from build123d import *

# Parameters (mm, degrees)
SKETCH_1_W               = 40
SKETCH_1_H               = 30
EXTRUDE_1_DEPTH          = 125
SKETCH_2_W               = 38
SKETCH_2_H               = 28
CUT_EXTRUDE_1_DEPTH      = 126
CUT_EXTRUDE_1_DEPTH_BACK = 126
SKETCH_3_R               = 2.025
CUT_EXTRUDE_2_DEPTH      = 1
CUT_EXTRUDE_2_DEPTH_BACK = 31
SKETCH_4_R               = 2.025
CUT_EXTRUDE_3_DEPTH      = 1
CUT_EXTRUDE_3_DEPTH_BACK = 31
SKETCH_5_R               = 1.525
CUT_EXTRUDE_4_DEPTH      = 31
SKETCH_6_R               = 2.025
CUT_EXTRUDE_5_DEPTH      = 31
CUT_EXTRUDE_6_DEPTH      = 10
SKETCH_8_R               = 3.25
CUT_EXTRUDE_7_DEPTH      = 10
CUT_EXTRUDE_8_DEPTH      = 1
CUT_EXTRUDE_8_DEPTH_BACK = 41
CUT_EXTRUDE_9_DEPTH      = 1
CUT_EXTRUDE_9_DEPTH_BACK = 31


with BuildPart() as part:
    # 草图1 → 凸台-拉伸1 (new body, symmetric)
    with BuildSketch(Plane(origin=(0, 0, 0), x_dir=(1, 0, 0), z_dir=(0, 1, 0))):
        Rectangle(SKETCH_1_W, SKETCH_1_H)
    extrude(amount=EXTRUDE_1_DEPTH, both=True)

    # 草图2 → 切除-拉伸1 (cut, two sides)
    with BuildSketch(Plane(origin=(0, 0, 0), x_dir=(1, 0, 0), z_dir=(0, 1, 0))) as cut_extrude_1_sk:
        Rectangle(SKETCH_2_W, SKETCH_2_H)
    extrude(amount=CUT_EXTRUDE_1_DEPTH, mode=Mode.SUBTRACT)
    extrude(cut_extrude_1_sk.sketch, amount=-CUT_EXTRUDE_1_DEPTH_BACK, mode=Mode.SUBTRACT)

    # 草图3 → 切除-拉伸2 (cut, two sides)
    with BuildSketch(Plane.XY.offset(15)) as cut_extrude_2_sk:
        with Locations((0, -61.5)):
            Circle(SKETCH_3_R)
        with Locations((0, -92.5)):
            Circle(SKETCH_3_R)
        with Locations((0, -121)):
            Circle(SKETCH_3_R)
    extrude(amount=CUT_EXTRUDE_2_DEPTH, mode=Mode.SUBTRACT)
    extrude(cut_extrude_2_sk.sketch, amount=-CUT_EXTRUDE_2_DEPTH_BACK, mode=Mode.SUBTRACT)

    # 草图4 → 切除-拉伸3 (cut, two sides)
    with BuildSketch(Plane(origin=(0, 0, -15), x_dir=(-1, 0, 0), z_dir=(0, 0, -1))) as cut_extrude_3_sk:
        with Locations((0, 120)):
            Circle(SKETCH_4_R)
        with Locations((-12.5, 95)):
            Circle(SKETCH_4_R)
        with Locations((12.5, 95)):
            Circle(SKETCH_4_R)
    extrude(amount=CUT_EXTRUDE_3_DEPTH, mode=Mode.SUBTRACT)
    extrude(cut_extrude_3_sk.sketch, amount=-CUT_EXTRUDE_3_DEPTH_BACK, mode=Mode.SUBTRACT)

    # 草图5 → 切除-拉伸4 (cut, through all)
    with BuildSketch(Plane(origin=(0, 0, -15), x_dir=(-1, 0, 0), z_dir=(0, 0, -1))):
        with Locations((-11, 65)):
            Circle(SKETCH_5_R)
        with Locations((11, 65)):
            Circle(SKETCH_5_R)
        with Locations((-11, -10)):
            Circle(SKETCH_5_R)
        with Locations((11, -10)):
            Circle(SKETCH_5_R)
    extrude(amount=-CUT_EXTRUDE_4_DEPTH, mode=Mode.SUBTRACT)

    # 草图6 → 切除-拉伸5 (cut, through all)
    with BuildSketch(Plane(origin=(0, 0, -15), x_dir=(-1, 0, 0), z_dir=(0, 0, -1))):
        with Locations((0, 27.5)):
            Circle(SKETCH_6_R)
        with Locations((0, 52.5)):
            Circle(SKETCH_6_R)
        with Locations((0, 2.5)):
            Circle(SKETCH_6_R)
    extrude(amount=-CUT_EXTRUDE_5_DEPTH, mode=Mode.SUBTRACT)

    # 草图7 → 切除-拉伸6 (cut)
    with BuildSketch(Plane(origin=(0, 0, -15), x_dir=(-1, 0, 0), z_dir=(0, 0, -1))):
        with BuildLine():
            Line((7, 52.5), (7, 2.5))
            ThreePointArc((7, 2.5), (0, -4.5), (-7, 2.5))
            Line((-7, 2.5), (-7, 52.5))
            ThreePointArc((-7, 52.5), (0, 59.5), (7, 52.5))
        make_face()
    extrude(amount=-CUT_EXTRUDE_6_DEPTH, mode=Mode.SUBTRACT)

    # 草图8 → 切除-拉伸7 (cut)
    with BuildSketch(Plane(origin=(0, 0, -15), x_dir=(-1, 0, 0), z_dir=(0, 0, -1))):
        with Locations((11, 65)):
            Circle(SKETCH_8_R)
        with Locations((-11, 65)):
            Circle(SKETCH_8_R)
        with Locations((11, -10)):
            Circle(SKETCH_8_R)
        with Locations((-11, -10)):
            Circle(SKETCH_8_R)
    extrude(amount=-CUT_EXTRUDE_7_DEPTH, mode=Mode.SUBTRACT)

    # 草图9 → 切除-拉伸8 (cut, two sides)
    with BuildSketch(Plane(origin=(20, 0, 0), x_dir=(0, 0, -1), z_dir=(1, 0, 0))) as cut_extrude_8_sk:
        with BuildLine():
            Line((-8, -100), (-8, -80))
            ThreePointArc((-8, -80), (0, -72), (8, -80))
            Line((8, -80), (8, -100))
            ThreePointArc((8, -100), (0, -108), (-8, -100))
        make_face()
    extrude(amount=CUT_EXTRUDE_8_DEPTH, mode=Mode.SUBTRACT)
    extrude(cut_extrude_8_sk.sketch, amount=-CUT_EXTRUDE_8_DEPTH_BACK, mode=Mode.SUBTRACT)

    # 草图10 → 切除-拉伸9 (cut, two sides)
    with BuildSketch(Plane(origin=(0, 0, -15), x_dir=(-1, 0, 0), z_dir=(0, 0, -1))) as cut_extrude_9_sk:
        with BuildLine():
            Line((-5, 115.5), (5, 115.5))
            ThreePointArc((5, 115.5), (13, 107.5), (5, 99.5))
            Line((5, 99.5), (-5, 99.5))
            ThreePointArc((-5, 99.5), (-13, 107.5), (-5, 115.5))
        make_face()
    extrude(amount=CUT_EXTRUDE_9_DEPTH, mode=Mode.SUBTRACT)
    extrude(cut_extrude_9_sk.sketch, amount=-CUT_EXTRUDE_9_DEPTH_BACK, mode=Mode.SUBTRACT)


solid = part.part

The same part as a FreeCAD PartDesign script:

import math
import FreeCAD as App
import Part
import Sketcher
Q = App.Units.Quantity


def add_polygon(sketch, points):
    """Adds a closed chain of lines whose ends are joined by coincident constraints."""
    first, n = sketch.GeometryCount, len(points)
    for a, b in zip(points, points[1:] + points[:1]):
        sketch.addGeometry(Part.LineSegment(App.Vector(*a, 0), App.Vector(*b, 0)), False)
    for i in range(n):
        sketch.addConstraint(Sketcher.Constraint("Coincident", first + i, 2, first + (i + 1) % n, 1))

doc = App.newDocument("Part")
body = doc.addObject("PartDesign::Body", "Body")

# Sketch on XZ plane
sketch1 = body.newObject("Sketcher::SketchObject", "Sketch")
sketch1.AttachmentSupport = (doc.getObject("XZ_Plane"), [""])
sketch1.MapMode = "FlatFace"
add_polygon(sketch1, [(-20, -15), (-20, 15), (20, 15), (20, -15)])  # lines 0-3
sketch1.addConstraint([
    Sketcher.Constraint("Vertical", 0),
    Sketcher.Constraint("Horizontal", 1),
    Sketcher.Constraint("Vertical", 2),
    Sketcher.Constraint("Horizontal", 3),
    Sketcher.Constraint("Symmetric", 0, 2, 2, 2, -1, 1),
    Sketcher.Constraint("DistanceX", 1, 1, 1, 2, Q("40 mm")),
    Sketcher.Constraint("DistanceY", 0, 1, 0, 2, Q("30 mm")),
])
pad1 = body.newObject("PartDesign::Pad", "Pad")
pad1.Profile = sketch1
pad1.Length = 250
pad1.Midplane = True

# Sketch on XZ plane
sketch2 = body.newObject("Sketcher::SketchObject", "Sketch001")
sketch2.AttachmentSupport = (doc.getObject("XZ_Plane"), [""])
sketch2.MapMode = "FlatFace"
add_polygon(sketch2, [(-19, -14), (-19, 14), (19, 14), (19, -14)])  # lines 0-3
sketch2.addConstraint([
    Sketcher.Constraint("Vertical", 0),
    Sketcher.Constraint("Horizontal", 1),
    Sketcher.Constraint("Vertical", 2),
    Sketcher.Constraint("Horizontal", 3),
    Sketcher.Constraint("Symmetric", 0, 2, 2, 2, -1, 1),
    Sketcher.Constraint("DistanceX", 1, 1, 1, 2, Q("38 mm")),
    Sketcher.Constraint("DistanceY", 0, 1, 0, 2, Q("28 mm")),
])
pocket1 = body.newObject("PartDesign::Pocket", "Pocket")
pocket1.Profile = sketch2
pocket1.Type = "ThroughAll"
pocket1.Midplane = True

# Sketch on XY plane
sketch3 = body.newObject("Sketcher::SketchObject", "Sketch002")
sketch3.AttachmentSupport = (doc.getObject("XY_Plane"), [""])
sketch3.MapMode = "FlatFace"
sketch3.AttachmentOffset = App.Placement(App.Vector(0, 0, 15), App.Rotation())
sketch3.addGeometry([
    Part.Circle(App.Vector(0, -61.5, 0), App.Vector(0, 0, 1), 2),
    Part.Circle(App.Vector(0, -92.5, 0), App.Vector(0, 0, 1), 2),
    Part.Circle(App.Vector(0, -121, 0), App.Vector(0, 0, 1), 2),
], False)
sketch3.addConstraint([
    Sketcher.Constraint("Equal", 0, 1),
    Sketcher.Constraint("Equal", 1, 2),
    Sketcher.Constraint("PointOnObject", 0, 3, -2),
    Sketcher.Constraint("PointOnObject", 1, 3, -2),
    Sketcher.Constraint("PointOnObject", 2, 3, -2),
    Sketcher.Constraint("Diameter", 0, Q("4.05 mm")),
    Sketcher.Constraint("DistanceY", 2, 3, -1, 1, Q("121 mm")),
    Sketcher.Constraint("DistanceY", 1, 3, 0, 3, Q("31 mm")),
    Sketcher.Constraint("DistanceY", 0, 3, -1, 1, Q("61.5 mm")),
])
pocket2 = body.newObject("PartDesign::Pocket", "Pocket001")
pocket2.Profile = sketch3
pocket2.Type = "ThroughAll"
pocket2.Midplane = True

# Sketch on XY plane
sketch4 = body.newObject("Sketcher::SketchObject", "Sketch003")
sketch4.AttachmentSupport = (doc.getObject("XY_Plane"), [""])
sketch4.MapMode = "FlatFace"
sketch4.AttachmentOffset = App.Placement(App.Vector(0, 0, -15), App.Rotation())
sketch4.addGeometry([
    Part.Circle(App.Vector(0, 120, 0), App.Vector(0, 0, 1), 2),
    Part.Circle(App.Vector(12.5, 95, 0), App.Vector(0, 0, 1), 2),
    Part.Circle(App.Vector(-12.5, 95, 0), App.Vector(0, 0, 1), 2),
], False)
sketch4.addConstraint([
    Sketcher.Constraint("Equal", 0, 1),
    Sketcher.Constraint("Equal", 1, 2),
    Sketcher.Constraint("Symmetric", 1, 3, 2, 3, -2),
    Sketcher.Constraint("PointOnObject", 0, 3, -2),
    Sketcher.Constraint("Diameter", 0, Q("4.05 mm")),
    Sketcher.Constraint("DistanceY", -1, 1, 0, 3, Q("120 mm")),
    Sketcher.Constraint("DistanceY", -1, 1, 1, 3, Q("95 mm")),
    Sketcher.Constraint("DistanceX", 2, 3, 1, 3, Q("25 mm")),
])
pocket3 = body.newObject("PartDesign::Pocket", "Pocket002")
pocket3.Profile = sketch4
pocket3.Type = "ThroughAll"
pocket3.Midplane = True

# Sketch on XY plane
sketch5 = body.newObject("Sketcher::SketchObject", "Sketch004")
sketch5.AttachmentSupport = (doc.getObject("XY_Plane"), [""])
sketch5.MapMode = "FlatFace"
sketch5.AttachmentOffset = App.Placement(App.Vector(0, 0, -15), App.Rotation())
sketch5.addGeometry([
    Part.Circle(App.Vector(11, 65, 0), App.Vector(0, 0, 1), 1.5),
    Part.Circle(App.Vector(-11, 65, 0), App.Vector(0, 0, 1), 1.5),
    Part.Circle(App.Vector(11, -10, 0), App.Vector(0, 0, 1), 1.5),
    Part.Circle(App.Vector(-11, -10, 0), App.Vector(0, 0, 1), 1.5),
], False)
sketch5.addConstraint([
    Sketcher.Constraint("Equal", 0, 1),
    Sketcher.Constraint("Equal", 1, 2),
    Sketcher.Constraint("Equal", 2, 3),
    Sketcher.Constraint("Symmetric", 0, 3, 1, 3, -2),
    Sketcher.Constraint("Symmetric", 2, 3, 3, 3, -2),
    Sketcher.Constraint("Vertical", 0, 3, 2, 3),
    Sketcher.Constraint("Diameter", 0, Q("3.05 mm")),
    Sketcher.Constraint("DistanceX", -1, 1, 0, 3, Q("11 mm")),
    Sketcher.Constraint("DistanceY", -1, 1, 0, 3, Q("65 mm")),
    Sketcher.Constraint("DistanceY", 2, 3, -1, 1, Q("10 mm")),
])
pocket4 = body.newObject("PartDesign::Pocket", "Pocket003")
pocket4.Profile = sketch5
pocket4.Type = "ThroughAll"
pocket4.Reversed = True

# Sketch on XY plane
sketch6 = body.newObject("Sketcher::SketchObject", "Sketch005")
sketch6.AttachmentSupport = (doc.getObject("XY_Plane"), [""])
sketch6.MapMode = "FlatFace"
sketch6.AttachmentOffset = App.Placement(App.Vector(0, 0, -15), App.Rotation())
sketch6.addGeometry([
    Part.Circle(App.Vector(0, 27.5, 0), App.Vector(0, 0, 1), 2),
    Part.Circle(App.Vector(0, 52.5, 0), App.Vector(0, 0, 1), 2),
    Part.Circle(App.Vector(0, 2.5, 0), App.Vector(0, 0, 1), 2),
], False)
sketch6.addConstraint([
    Sketcher.Constraint("Equal", 0, 1),
    Sketcher.Constraint("Equal", 1, 2),
    Sketcher.Constraint("PointOnObject", 0, 3, -2),
    Sketcher.Constraint("PointOnObject", 1, 3, -2),
    Sketcher.Constraint("PointOnObject", 2, 3, -2),
    Sketcher.Constraint("Diameter", 0, Q("4.05 mm")),
    Sketcher.Constraint("DistanceY", 0, 3, 1, 3, Q("25 mm")),
    Sketcher.Constraint("DistanceY", 2, 3, 0, 3, Q("25 mm")),
    Sketcher.Constraint("DistanceY", -1, 1, 0, 3, Q("27.5 mm")),
])
pocket5 = body.newObject("PartDesign::Pocket", "Pocket004")
pocket5.Profile = sketch6
pocket5.Type = "ThroughAll"
pocket5.Reversed = True

# Sketch on XY plane
sketch7 = body.newObject("Sketcher::SketchObject", "Sketch006")
sketch7.AttachmentSupport = (doc.getObject("XY_Plane"), [""])
sketch7.MapMode = "FlatFace"
sketch7.AttachmentOffset = App.Placement(App.Vector(0, 0, -15), App.Rotation())
sketch7.addGeometry([
    Part.LineSegment(App.Vector(-7, 2, 0), App.Vector(-7, 52, 0)),
    Part.ArcOfCircle(Part.Circle(App.Vector(0, 52, 0), App.Vector(0, 0, 1), 7), math.radians(0), math.radians(180)),
    Part.LineSegment(App.Vector(7, 52, 0), App.Vector(7, 2, 0)),
    Part.ArcOfCircle(Part.Circle(App.Vector(0, 2, 0), App.Vector(0, 0, 1), 7), math.radians(180), math.radians(360)),
], False)
sketch7.addConstraint([
    Sketcher.Constraint("Tangent", 0, 2, 1, 2),
    Sketcher.Constraint("Tangent", 1, 1, 2, 1),
    Sketcher.Constraint("Tangent", 2, 2, 3, 2),
    Sketcher.Constraint("Tangent", 3, 1, 0, 1),
    Sketcher.Constraint("Vertical", 0),
    Sketcher.Constraint("Vertical", 2),
    Sketcher.Constraint("PointOnObject", 1, 3, -2),
    Sketcher.Constraint("Radius", 1, Q("7 mm")),
    Sketcher.Constraint("DistanceY", 0, 1, 0, 2, Q("50 mm")),
    Sketcher.Constraint("DistanceY", -1, 1, 1, 3, Q("52.5 mm")),
])
pocket6 = body.newObject("PartDesign::Pocket", "Pocket005")
pocket6.Profile = sketch7
pocket6.Length = 10
pocket6.Reversed = True

# Sketch on XY plane
sketch8 = body.newObject("Sketcher::SketchObject", "Sketch007")
sketch8.AttachmentSupport = (doc.getObject("XY_Plane"), [""])
sketch8.MapMode = "FlatFace"
sketch8.AttachmentOffset = App.Placement(App.Vector(0, 0, -15), App.Rotation())
sketch8.addGeometry([
    Part.Circle(App.Vector(-11, 65, 0), App.Vector(0, 0, 1), 3.2),
    Part.Circle(App.Vector(11, 65, 0), App.Vector(0, 0, 1), 3.2),
    Part.Circle(App.Vector(-11, -10, 0), App.Vector(0, 0, 1), 3.2),
    Part.Circle(App.Vector(11, -10, 0), App.Vector(0, 0, 1), 3.2),
], False)
sketch8.addConstraint([
    Sketcher.Constraint("Equal", 0, 1),
    Sketcher.Constraint("Equal", 1, 2),
    Sketcher.Constraint("Equal", 2, 3),
    Sketcher.Constraint("Symmetric", 0, 3, 1, 3, -2),
    Sketcher.Constraint("Symmetric", 2, 3, 3, 3, -2),
    Sketcher.Constraint("Vertical", 0, 3, 2, 3),
    Sketcher.Constraint("Diameter", 0, Q("6.5 mm")),
    Sketcher.Constraint("DistanceX", 0, 3, -1, 1, Q("11 mm")),
    Sketcher.Constraint("DistanceY", -1, 1, 0, 3, Q("65 mm")),
    Sketcher.Constraint("DistanceY", 2, 3, -1, 1, Q("10 mm")),
])
pocket7 = body.newObject("PartDesign::Pocket", "Pocket006")
pocket7.Profile = sketch8
pocket7.Length = 10
pocket7.Reversed = True

# Sketch on YZ plane
sketch9 = body.newObject("Sketcher::SketchObject", "Sketch008")
sketch9.AttachmentSupport = (doc.getObject("YZ_Plane"), [""])
sketch9.MapMode = "FlatFace"
sketch9.AttachmentOffset = App.Placement(App.Vector(0, 0, 20), App.Rotation())
sketch9.addGeometry([
    Part.LineSegment(App.Vector(-80, 8, 0), App.Vector(-100, 8, 0)),
    Part.ArcOfCircle(Part.Circle(App.Vector(-100, 0, 0), App.Vector(0, 0, 1), 8), math.radians(90), math.radians(270)),
    Part.LineSegment(App.Vector(-100, -8, 0), App.Vector(-80, -8, 0)),
    Part.ArcOfCircle(Part.Circle(App.Vector(-80, 0, 0), App.Vector(0, 0, 1), 8), math.radians(-90), math.radians(90)),
], False)
sketch9.addConstraint([
    Sketcher.Constraint("Tangent", 0, 2, 1, 1),
    Sketcher.Constraint("Tangent", 1, 2, 2, 1),
    Sketcher.Constraint("Tangent", 2, 2, 3, 1),
    Sketcher.Constraint("Tangent", 3, 2, 0, 1),
    Sketcher.Constraint("Horizontal", 0),
    Sketcher.Constraint("Horizontal", 2),
    Sketcher.Constraint("PointOnObject", 1, 3, -1),
    Sketcher.Constraint("Radius", 1, Q("8 mm")),
    Sketcher.Constraint("DistanceX", 0, 2, 0, 1, Q("20 mm")),
    Sketcher.Constraint("DistanceX", 1, 3, -1, 1, Q("100 mm")),
])
pocket8 = body.newObject("PartDesign::Pocket", "Pocket007")
pocket8.Profile = sketch9
pocket8.Type = "ThroughAll"
pocket8.Midplane = True

# Sketch on XY plane
sketch10 = body.newObject("Sketcher::SketchObject", "Sketch009")
sketch10.AttachmentSupport = (doc.getObject("XY_Plane"), [""])
sketch10.MapMode = "FlatFace"
sketch10.AttachmentOffset = App.Placement(App.Vector(0, 0, -15), App.Rotation())
sketch10.addGeometry([
    Part.LineSegment(App.Vector(-5, 116, 0), App.Vector(5, 116, 0)),
    Part.ArcOfCircle(Part.Circle(App.Vector(5, 108, 0), App.Vector(0, 0, 1), 8), math.radians(-90), math.radians(90)),
    Part.LineSegment(App.Vector(5, 100, 0), App.Vector(-5, 100, 0)),
    Part.ArcOfCircle(Part.Circle(App.Vector(-5, 108, 0), App.Vector(0, 0, 1), 8), math.radians(90), math.radians(270)),
], False)
sketch10.addConstraint([
    Sketcher.Constraint("Tangent", 0, 2, 1, 2),
    Sketcher.Constraint("Tangent", 1, 1, 2, 1),
    Sketcher.Constraint("Tangent", 2, 2, 3, 2),
    Sketcher.Constraint("Tangent", 3, 1, 0, 1),
    Sketcher.Constraint("Horizontal", 0),
    Sketcher.Constraint("Horizontal", 2),
    Sketcher.Constraint("Radius", 1, Q("8 mm")),
    Sketcher.Constraint("DistanceX", 0, 1, 0, 2, Q("10 mm")),
    Sketcher.Constraint("DistanceX", -1, 1, 1, 3, Q("5 mm")),
    Sketcher.Constraint("DistanceY", -1, 1, 1, 3, Q("107.5 mm")),
])
pocket9 = body.newObject("PartDesign::Pocket", "Pocket008")
pocket9.Profile = sketch10
pocket9.Type = "ThroughAll"
pocket9.Midplane = True

doc.recompute()
